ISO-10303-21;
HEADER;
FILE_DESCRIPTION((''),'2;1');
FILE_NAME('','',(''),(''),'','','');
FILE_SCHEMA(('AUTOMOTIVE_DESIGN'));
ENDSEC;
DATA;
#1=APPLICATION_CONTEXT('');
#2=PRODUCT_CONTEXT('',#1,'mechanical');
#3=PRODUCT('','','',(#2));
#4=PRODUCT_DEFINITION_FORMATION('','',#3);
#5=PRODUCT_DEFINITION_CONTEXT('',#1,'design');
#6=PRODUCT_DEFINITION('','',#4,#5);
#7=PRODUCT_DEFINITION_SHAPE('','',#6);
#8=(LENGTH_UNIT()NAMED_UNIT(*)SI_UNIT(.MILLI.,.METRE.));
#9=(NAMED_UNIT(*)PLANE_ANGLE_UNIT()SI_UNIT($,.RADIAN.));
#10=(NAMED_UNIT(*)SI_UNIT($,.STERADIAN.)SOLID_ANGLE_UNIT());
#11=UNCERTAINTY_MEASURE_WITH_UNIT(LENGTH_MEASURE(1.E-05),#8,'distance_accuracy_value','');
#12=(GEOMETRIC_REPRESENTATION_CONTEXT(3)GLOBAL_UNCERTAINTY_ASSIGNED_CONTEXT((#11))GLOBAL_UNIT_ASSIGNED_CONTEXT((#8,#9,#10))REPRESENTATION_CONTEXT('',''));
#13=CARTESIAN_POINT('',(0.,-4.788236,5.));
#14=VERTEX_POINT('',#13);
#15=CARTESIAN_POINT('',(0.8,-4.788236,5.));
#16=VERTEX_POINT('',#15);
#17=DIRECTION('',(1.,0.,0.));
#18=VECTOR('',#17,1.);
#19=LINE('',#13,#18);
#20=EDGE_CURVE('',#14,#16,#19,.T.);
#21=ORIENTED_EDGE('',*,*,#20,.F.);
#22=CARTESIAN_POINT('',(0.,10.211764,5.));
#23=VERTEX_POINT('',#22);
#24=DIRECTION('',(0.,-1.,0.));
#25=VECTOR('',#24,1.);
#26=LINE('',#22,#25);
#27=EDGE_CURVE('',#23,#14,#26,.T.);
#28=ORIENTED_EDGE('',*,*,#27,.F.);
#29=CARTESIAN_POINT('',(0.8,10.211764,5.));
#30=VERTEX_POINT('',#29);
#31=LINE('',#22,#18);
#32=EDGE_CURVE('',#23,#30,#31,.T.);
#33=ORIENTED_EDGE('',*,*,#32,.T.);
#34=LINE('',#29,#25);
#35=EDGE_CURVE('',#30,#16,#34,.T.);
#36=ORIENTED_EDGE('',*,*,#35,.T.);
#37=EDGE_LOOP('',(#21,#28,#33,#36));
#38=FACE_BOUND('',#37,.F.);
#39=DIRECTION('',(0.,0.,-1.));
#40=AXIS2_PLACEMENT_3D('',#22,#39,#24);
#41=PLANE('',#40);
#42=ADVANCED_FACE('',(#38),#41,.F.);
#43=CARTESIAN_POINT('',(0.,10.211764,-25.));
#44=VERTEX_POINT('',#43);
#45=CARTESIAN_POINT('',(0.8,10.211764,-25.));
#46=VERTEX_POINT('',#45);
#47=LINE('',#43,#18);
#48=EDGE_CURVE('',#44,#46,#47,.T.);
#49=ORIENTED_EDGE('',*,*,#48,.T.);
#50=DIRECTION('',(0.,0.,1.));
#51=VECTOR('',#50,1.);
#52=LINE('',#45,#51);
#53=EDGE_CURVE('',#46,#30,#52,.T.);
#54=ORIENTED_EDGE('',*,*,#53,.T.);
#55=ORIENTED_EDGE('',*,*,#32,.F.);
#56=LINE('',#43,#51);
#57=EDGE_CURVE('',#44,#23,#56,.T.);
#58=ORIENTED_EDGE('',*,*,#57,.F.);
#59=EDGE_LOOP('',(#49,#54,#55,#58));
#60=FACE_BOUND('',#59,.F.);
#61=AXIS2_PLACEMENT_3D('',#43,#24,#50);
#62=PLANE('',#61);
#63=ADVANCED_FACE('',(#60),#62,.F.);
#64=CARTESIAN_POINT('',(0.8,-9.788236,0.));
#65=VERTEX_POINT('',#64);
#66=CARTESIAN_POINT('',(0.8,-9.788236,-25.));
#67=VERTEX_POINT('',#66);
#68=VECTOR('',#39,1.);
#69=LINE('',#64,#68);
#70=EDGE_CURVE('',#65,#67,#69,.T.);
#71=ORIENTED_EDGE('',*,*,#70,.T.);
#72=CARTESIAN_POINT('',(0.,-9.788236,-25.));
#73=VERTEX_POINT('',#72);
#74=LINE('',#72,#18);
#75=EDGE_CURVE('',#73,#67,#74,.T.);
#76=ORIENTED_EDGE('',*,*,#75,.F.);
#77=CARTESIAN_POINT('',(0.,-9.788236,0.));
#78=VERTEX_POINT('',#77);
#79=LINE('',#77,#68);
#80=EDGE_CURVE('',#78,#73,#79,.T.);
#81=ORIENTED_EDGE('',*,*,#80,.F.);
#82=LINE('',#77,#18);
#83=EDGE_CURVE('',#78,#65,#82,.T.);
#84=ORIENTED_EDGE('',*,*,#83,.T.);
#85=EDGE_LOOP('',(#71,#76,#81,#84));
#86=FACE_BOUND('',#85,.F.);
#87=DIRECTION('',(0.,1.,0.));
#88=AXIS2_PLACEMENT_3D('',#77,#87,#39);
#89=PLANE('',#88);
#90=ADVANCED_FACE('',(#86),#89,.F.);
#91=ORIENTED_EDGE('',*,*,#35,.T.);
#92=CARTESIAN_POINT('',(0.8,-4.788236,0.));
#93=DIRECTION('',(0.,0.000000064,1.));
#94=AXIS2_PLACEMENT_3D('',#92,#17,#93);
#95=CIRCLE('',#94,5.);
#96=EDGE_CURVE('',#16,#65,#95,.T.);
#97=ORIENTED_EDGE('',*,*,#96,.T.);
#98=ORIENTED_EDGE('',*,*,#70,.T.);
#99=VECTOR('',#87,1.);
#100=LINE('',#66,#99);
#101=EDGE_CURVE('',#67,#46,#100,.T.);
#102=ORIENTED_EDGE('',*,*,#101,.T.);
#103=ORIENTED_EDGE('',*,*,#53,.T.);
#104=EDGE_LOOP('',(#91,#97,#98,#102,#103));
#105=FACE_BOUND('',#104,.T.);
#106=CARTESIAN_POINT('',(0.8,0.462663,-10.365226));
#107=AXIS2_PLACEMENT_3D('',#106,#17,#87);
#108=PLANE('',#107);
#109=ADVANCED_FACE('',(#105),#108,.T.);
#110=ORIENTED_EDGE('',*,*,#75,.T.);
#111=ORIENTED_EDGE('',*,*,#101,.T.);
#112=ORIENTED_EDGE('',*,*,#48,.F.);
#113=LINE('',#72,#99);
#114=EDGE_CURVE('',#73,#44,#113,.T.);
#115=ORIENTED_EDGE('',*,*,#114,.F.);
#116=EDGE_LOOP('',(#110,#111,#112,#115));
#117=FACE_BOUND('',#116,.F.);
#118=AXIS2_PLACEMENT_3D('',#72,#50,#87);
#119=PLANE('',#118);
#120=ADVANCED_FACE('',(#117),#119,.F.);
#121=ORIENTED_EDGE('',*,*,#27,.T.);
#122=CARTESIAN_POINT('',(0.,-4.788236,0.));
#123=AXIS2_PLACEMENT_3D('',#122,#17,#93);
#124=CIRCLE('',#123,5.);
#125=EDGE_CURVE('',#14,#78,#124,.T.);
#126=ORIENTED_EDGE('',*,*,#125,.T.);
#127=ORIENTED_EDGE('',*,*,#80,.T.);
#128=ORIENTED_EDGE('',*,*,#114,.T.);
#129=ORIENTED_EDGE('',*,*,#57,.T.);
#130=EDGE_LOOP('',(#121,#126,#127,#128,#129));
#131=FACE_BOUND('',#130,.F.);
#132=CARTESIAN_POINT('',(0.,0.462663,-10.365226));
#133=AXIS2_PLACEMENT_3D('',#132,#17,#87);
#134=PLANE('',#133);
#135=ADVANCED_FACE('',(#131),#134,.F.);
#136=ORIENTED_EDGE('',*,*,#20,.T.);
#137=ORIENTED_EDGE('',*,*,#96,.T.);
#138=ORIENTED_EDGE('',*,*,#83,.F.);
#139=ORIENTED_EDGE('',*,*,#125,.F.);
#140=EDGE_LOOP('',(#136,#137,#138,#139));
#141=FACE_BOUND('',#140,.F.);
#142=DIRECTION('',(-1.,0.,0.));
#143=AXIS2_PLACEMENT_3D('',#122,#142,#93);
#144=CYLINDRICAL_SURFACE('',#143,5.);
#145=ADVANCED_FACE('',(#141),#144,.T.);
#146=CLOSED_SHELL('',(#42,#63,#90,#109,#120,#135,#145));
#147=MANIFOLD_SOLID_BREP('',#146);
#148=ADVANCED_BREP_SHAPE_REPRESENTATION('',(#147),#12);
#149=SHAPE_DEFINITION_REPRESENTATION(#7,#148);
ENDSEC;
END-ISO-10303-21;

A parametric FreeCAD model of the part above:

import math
import FreeCAD as App
import Part
import Sketcher

V = App.Vector

doc = App.newDocument("Part")
body = doc.addObject("PartDesign::Body", "Body")

# Sketch on YZ plane
sketch1 = doc.addObject("Sketcher::SketchObject", "Sketch")
body.addObject(sketch1)
sketch1.AttachmentSupport = (doc.YZ_Plane, [""])
sketch1.MapMode = "FlatFace"
sketch1.addGeometry([
    Part.ArcOfCircle(Part.Circle(V(-4.8, 0, 0), V(0, 0, 1), 5), math.radians(90), math.radians(180)),  # 0
    Part.LineSegment(V(-9.8, 0, 0), V(-9.8, -25, 0)),  # 1
    Part.LineSegment(V(-9.8, -25, 0), V(10.2, -25, 0)),  # 2
    Part.LineSegment(V(10.2, -25, 0), V(10.2, 5, 0)),  # 3
    Part.LineSegment(V(10.2, 5, 0), V(-4.8, 5, 0)),  # 4
], False)
sketch1.addConstraint([
    Sketcher.Constraint("Tangent", 0, 2, 1, 1),
    Sketcher.Constraint("Coincident", 1, 2, 2, 1),
    Sketcher.Constraint("Coincident", 2, 2, 3, 1),
    Sketcher.Constraint("Coincident", 3, 2, 4, 1),
    Sketcher.Constraint("Tangent", 4, 2, 0, 1),
    Sketcher.Constraint("Vertical", 1),
    Sketcher.Constraint("Horizontal", 2),
    Sketcher.Constraint("Vertical", 3),
    Sketcher.Constraint("Horizontal", 4),
    Sketcher.Constraint("PointOnObject", 0, 3, -1),
    Sketcher.Constraint("Radius", 0, 5.0),
    Sketcher.Constraint("DistanceX", 2, 1, 2, 2, 20.0),
    Sketcher.Constraint("DistanceY", 1, 2, 1, 1, 25.0),
    Sketcher.Constraint("DistanceX", 0, 3, -1, 1, 4.788236),
])
pad1 = doc.addObject("PartDesign::Pad", "Pad")
body.addObject(pad1)
pad1.Profile = sketch1
pad1.Length = 0.8

doc.recompute()
